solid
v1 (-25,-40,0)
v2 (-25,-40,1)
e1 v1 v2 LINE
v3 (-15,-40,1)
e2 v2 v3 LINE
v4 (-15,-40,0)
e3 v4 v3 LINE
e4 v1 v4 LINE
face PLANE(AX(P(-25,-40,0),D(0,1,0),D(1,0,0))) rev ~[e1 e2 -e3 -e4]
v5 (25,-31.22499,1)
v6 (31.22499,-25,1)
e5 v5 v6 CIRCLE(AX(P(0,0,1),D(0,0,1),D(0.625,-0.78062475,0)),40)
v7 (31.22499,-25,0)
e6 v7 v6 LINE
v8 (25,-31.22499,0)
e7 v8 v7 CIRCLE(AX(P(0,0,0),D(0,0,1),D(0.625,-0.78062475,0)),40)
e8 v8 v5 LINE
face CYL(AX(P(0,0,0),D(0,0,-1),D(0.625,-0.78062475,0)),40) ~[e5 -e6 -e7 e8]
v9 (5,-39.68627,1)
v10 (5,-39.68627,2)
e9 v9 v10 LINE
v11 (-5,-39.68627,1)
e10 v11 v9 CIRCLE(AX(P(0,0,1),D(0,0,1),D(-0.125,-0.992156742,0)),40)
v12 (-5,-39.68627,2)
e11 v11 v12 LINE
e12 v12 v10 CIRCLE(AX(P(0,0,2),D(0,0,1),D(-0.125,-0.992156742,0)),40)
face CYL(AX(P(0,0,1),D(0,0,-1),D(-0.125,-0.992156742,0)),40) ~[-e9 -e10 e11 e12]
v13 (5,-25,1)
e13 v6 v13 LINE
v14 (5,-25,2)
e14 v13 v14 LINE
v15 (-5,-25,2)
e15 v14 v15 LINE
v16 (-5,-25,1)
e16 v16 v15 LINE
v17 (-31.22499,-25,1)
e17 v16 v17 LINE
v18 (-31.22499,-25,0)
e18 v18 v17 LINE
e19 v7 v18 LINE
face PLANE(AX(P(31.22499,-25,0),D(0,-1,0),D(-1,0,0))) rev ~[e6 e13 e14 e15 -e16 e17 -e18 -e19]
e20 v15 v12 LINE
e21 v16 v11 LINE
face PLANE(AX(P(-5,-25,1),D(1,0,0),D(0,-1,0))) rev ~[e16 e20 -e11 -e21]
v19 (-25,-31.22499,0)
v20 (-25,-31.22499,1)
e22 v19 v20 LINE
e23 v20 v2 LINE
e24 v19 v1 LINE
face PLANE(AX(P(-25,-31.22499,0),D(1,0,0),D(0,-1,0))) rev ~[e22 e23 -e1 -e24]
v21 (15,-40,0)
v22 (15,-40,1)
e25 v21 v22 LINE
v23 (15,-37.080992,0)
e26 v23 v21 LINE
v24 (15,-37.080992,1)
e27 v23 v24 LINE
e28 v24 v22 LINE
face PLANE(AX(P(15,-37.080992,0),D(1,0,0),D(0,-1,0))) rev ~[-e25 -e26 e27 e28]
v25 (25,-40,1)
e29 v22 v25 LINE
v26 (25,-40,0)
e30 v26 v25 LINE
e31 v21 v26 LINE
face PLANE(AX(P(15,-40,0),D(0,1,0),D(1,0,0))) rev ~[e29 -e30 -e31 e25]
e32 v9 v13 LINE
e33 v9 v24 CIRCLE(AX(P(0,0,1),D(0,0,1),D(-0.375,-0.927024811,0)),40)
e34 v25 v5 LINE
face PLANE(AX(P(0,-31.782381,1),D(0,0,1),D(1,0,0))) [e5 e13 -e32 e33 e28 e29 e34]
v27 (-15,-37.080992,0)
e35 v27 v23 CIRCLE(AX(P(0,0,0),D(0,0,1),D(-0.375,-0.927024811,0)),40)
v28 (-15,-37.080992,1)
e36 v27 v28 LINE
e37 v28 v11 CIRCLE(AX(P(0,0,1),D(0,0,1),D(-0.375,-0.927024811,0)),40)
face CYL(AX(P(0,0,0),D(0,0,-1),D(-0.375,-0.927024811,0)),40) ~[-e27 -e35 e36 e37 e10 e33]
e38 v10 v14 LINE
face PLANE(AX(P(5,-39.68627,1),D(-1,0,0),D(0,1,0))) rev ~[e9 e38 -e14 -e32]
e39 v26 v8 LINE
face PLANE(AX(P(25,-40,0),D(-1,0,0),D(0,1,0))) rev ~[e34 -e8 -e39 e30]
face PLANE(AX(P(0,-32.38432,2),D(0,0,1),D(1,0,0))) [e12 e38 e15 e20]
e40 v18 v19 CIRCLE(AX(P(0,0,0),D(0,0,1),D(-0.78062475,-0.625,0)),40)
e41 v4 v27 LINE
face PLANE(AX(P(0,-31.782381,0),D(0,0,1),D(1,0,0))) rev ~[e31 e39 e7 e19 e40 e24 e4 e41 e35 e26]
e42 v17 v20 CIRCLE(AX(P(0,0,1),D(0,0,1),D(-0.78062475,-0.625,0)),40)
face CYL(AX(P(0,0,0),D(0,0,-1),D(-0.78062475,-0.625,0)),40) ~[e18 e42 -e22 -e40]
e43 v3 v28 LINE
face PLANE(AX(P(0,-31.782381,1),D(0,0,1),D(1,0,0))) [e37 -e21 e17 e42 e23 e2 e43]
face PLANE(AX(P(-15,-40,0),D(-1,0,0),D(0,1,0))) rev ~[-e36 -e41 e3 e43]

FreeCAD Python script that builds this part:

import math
import FreeCAD as App
import Part
import Sketcher

V = App.Vector

doc = App.newDocument("Part")
body = doc.addObject("PartDesign::Body", "Body")

# Sketch on XY plane
sketch1 = body.newObject("Sketcher::SketchObject", "Sketch")
sketch1.AttachmentSupport = (doc.getObject("XY_Plane"), [""])
sketch1.MapMode = "FlatFace"
sketch1.addGeometry([
    Part.LineSegment(V(31.2, -25, 0), V(-31.2, -25, 0)),  # 0
    Part.ArcOfCircle(Part.Circle(V(0, 0, 0), V(0, 0, 1), 40), math.radians(-141.32), math.radians(-128.68)),  # 1
    Part.LineSegment(V(-25, -31.2, 0), V(-25, -40, 0)),  # 2
    Part.LineSegment(V(-25, -40, 0), V(-15, -40, 0)),  # 3
    Part.LineSegment(V(-15, -40, 0), V(-15, -37.1, 0)),  # 4
    Part.ArcOfCircle(Part.Circle(V(0, 0, 0), V(0, 0, 1), 40), math.radians(-112), math.radians(-68)),  # 5
    Part.LineSegment(V(15, -37.1, 0), V(15, -40, 0)),  # 6
    Part.LineSegment(V(15, -40, 0), V(25, -40, 0)),  # 7
    Part.LineSegment(V(25, -40, 0), V(25, -31.2, 0)),  # 8
    Part.ArcOfCircle(Part.Circle(V(0, 0, 0), V(0, 0, 1), 40), math.radians(-51.32), math.radians(-38.68)),  # 9
], False)
sketch1.addConstraint([
    Sketcher.Constraint("Coincident", 0, 2, 1, 1),
    Sketcher.Constraint("Coincident", 1, 2, 2, 1),
    Sketcher.Constraint("Coincident", 2, 2, 3, 1),
    Sketcher.Constraint("Coincident", 3, 2, 4, 1),
    Sketcher.Constraint("Coincident", 4, 2, 5, 1),
    Sketcher.Constraint("Coincident", 5, 2, 6, 1),
    Sketcher.Constraint("Coincident", 6, 2, 7, 1),
    Sketcher.Constraint("Coincident", 7, 2, 8, 1),
    Sketcher.Constraint("Coincident", 8, 2, 9, 1),
    Sketcher.Constraint("Coincident", 9, 2, 0, 1),
    Sketcher.Constraint("Horizontal", 0),
    Sketcher.Constraint("Vertical", 2),
    Sketcher.Constraint("Horizontal", 3),
    Sketcher.Constraint("Vertical", 4),
    Sketcher.Constraint("Vertical", 6),
    Sketcher.Constraint("Horizontal", 7),
    Sketcher.Constraint("Vertical", 8),
    Sketcher.Constraint("Coincident", 1, 3, -1, 1),
    Sketcher.Constraint("Coincident", 5, 3, -1, 1),
    Sketcher.Constraint("Coincident", 9, 3, -1, 1),
    Sketcher.Constraint("Equal", 1, 5),
    Sketcher.Constraint("Equal", 5, 9),
    Sketcher.Constraint("Symmetric", 3, 2, 6, 2, -2),
    Sketcher.Constraint("Horizontal", 1, 2, 8, 2),
    Sketcher.Constraint("Radius", 1, 40.0),
    Sketcher.Constraint("DistanceX", 3, 1, 3, 2, 10.0),
    Sketcher.Constraint("DistanceY", 0, 2, -1, 1, 25.0),
    Sketcher.Constraint("DistanceX", 1, 2, -1, 1, 25.0),
    Sketcher.Constraint("DistanceY", 2, 2, -1, 1, 40.0),
])
pad1 = body.newObject("PartDesign::Pad", "Pad")
pad1.Profile = sketch1
pad1.Length = 1

# Sketch on XY plane
sketch2 = body.newObject("Sketcher::SketchObject", "Sketch001")
sketch2.AttachmentSupport = (doc.getObject("XY_Plane"), [""])
sketch2.MapMode = "FlatFace"
sketch2.AttachmentOffset = App.Placement(V(0, 0, 1), App.Rotation())
sketch2.addGeometry([
    Part.LineSegment(V(5, -25, 0), V(-5, -25, 0)),
    Part.LineSegment(V(-5, -25, 0), V(-5, -40, 0)),
    Part.ArcOfCircle(Part.Circle(V(0, 0, 0), V(0, 0, 1), 40), math.radians(-97.18), math.radians(-82.82)),
    Part.LineSegment(V(5, -40, 0), V(5, -25, 0)),
], False)
sketch2.addConstraint([
    Sketcher.Constraint("Coincident", 0, 2, 1, 1),
    Sketcher.Constraint("Coincident", 1, 2, 2, 1),
    Sketcher.Constraint("Coincident", 2, 2, 3, 1),
    Sketcher.Constraint("Coincident", 3, 2, 0, 1),
    Sketcher.Constraint("Horizontal", 0),
    Sketcher.Constraint("Vertical", 1),
    Sketcher.Constraint("Vertical", 3),
    Sketcher.Constraint("Coincident", 2, 3, -1, 1),
    Sketcher.Constraint("Horizontal", 1, 2, 2, 2),
    Sketcher.Constraint("Radius", 2, 40.0),
    Sketcher.Constraint("DistanceX", 0, 2, 0, 1, 10.0),
    Sketcher.Constraint("DistanceY", 0, 2, -1, 1, 25.0),
])
pad2 = body.newObject("PartDesign::Pad", "Pad001")
pad2.Profile = sketch2
pad2.Length = 1

doc.recompute()
